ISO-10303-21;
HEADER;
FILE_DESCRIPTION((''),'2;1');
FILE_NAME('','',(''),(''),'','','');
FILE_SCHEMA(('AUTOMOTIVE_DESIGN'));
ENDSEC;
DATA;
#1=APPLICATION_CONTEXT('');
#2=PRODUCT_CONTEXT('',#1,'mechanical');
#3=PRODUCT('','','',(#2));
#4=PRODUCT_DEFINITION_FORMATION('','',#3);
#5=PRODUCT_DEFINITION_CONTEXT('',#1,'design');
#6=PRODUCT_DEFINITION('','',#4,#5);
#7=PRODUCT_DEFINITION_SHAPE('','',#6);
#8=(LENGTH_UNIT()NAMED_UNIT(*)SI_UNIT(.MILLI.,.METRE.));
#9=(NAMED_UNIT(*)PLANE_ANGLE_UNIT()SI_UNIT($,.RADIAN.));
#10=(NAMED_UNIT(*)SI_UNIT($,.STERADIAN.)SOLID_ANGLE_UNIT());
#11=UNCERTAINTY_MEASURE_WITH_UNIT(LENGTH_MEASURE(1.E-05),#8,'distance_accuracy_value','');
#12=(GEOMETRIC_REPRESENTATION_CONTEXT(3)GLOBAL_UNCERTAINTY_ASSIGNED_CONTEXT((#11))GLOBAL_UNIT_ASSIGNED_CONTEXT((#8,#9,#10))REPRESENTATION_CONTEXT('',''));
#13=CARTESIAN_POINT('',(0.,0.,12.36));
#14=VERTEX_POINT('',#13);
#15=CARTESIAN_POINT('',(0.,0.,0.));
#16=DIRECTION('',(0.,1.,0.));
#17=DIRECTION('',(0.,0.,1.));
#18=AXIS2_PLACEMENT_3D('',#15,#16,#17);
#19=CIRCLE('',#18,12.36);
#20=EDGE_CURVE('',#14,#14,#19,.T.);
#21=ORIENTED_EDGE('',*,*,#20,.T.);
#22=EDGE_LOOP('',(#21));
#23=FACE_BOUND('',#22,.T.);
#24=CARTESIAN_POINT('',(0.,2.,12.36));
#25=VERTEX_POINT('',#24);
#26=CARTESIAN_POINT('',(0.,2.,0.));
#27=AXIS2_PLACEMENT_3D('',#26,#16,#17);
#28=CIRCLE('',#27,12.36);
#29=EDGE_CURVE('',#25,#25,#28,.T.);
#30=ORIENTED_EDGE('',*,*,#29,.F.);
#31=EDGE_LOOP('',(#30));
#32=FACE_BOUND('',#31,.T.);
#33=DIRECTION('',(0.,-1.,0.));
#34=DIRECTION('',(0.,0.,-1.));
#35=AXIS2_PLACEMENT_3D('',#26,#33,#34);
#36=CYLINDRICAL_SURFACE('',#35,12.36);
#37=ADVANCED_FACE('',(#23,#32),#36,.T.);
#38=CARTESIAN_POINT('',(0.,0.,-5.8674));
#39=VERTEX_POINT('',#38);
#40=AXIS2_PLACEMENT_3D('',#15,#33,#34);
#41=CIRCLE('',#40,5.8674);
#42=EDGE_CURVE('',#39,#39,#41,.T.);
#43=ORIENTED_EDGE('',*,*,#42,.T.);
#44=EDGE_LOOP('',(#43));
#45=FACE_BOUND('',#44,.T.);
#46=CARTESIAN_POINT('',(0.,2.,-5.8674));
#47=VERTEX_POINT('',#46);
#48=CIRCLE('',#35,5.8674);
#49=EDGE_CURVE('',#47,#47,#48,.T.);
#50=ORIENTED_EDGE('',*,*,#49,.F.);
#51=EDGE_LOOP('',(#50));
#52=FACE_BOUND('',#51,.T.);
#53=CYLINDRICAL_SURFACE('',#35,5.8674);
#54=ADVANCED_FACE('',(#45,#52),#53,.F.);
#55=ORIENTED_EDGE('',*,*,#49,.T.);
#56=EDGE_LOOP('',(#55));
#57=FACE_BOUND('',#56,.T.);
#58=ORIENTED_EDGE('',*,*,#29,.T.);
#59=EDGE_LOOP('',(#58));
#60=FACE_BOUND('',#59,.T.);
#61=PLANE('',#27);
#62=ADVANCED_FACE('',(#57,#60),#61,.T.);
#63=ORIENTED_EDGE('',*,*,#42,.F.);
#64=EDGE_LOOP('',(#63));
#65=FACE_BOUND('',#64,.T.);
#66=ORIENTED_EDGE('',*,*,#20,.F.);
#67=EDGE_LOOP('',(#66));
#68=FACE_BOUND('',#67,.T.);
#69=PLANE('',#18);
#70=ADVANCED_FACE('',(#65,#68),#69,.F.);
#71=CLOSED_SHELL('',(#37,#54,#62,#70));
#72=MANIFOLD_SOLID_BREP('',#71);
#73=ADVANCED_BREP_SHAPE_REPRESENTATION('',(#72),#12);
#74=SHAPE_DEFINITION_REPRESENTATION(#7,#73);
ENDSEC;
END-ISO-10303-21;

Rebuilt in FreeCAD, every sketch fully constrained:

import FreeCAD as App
import Part
import Sketcher
from FreeCAD import Vector
Q = App.Units.Quantity

doc = App.newDocument("Part")
body = doc.addObject("PartDesign::Body", "Body")

sketch1 = body.newObject("Sketcher::SketchObject", "Sketch")
sketch1.AttachmentSupport = (doc.getObject("XZ_Plane"), [""])
sketch1.MapMode = "FlatFace"
sketch1.addGeometry(Part.Circle(Vector(0, 0, 0), Vector(0, 0, 1), 12.36), False)
sketch1.addConstraint(Sketcher.Constraint("Coincident", 0, 3, -1, 1))
sketch1.addConstraint(Sketcher.Constraint("Diameter", 0, Q("24.72 mm")))
pad1 = body.newObject("PartDesign::Pad", "Pad")
pad1.Profile = sketch1
pad1.Length = 2
pad1.Reversed = True

sketch2 = body.newObject("Sketcher::SketchObject", "Sketch001")
sketch2.AttachmentSupport = (doc.getObject("XZ_Plane"), [""])
sketch2.MapMode = "FlatFace"
sketch2.addGeometry(Part.Circle(Vector(0, 0, 0), Vector(0, 0, 1), 5.8674), False)
sketch2.addConstraint(Sketcher.Constraint("Coincident", 0, 3, -1, 1))
sketch2.addConstraint(Sketcher.Constraint("Diameter", 0, Q("11.7348 mm")))
pocket1 = body.newObject("PartDesign::Pocket", "Pocket")
pocket1.Profile = sketch2
pocket1.Type = "ThroughAll"

doc.recompute()
